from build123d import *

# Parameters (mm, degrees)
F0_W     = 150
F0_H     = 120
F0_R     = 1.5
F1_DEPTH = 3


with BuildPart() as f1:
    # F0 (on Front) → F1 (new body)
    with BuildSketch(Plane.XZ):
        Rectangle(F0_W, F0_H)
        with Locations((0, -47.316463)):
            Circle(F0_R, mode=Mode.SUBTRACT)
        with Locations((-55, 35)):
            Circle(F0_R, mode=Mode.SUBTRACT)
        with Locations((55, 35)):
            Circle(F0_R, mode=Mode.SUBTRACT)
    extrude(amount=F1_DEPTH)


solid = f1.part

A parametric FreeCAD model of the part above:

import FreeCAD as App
import Part
import Sketcher

V = App.Vector

doc = App.newDocument("Part")
body = doc.addObject("PartDesign::Body", "Body")

# Sketch on XZ plane
sketch1 = body.newObject("Sketcher::SketchObject", "Sketch")
sketch1.AttachmentSupport = (doc.getObject("XZ_Plane"), [""])
sketch1.MapMode = "FlatFace"
sketch1.addGeometry([
    Part.LineSegment(V(-75, 60, 0), V(-75, -60, 0)),  # 0
    Part.LineSegment(V(-75, -60, 0), V(75, -60, 0)),  # 1
    Part.LineSegment(V(75, -60, 0), V(75, 60, 0)),  # 2
    Part.LineSegment(V(75, 60, 0), V(-75, 60, 0)),  # 3
    Part.Circle(V(0, -47.3, 0), V(0, 0, 1), 1.5),  # 4
    Part.Circle(V(-55, 35, 0), V(0, 0, 1), 1.5),  # 5
    Part.Circle(V(55, 35, 0), V(0, 0, 1), 1.5),  # 6
], False)
sketch1.addConstraint([
    Sketcher.Constraint("Coincident", 0, 2, 1, 1),
    Sketcher.Constraint("Coincident", 1, 2, 2, 1),
    Sketcher.Constraint("Coincident", 2, 2, 3, 1),
    Sketcher.Constraint("Coincident", 3, 2, 0, 1),
    Sketcher.Constraint("Vertical", 0),
    Sketcher.Constraint("Horizontal", 1),
    Sketcher.Constraint("Vertical", 2),
    Sketcher.Constraint("Horizontal", 3),
    Sketcher.Constraint("Equal", 4, 5),
    Sketcher.Constraint("Equal", 5, 6),
    Sketcher.Constraint("Symmetric", 0, 2, 2, 2, -1, 1),
    Sketcher.Constraint("Symmetric", 5, 3, 6, 3, -2),
    Sketcher.Constraint("PointOnObject", 4, 3, -2),
    Sketcher.Constraint("Diameter", 4, 3.0),
    Sketcher.Constraint("DistanceX", 1, 1, 1, 2, 150.0),
    Sketcher.Constraint("DistanceY", 0, 2, 0, 1, 120.0),
    Sketcher.Constraint("DistanceX", 5, 3, -1, 1, 55.0),
    Sketcher.Constraint("DistanceY", -1, 1, 5, 3, 35.0),
    Sketcher.Constraint("DistanceY", 4, 3, -1, 1, 47.316463),
])
pad1 = body.newObject("PartDesign::Pad", "Pad")
pad1.Profile = sketch1
pad1.Length = 3

doc.recompute()
